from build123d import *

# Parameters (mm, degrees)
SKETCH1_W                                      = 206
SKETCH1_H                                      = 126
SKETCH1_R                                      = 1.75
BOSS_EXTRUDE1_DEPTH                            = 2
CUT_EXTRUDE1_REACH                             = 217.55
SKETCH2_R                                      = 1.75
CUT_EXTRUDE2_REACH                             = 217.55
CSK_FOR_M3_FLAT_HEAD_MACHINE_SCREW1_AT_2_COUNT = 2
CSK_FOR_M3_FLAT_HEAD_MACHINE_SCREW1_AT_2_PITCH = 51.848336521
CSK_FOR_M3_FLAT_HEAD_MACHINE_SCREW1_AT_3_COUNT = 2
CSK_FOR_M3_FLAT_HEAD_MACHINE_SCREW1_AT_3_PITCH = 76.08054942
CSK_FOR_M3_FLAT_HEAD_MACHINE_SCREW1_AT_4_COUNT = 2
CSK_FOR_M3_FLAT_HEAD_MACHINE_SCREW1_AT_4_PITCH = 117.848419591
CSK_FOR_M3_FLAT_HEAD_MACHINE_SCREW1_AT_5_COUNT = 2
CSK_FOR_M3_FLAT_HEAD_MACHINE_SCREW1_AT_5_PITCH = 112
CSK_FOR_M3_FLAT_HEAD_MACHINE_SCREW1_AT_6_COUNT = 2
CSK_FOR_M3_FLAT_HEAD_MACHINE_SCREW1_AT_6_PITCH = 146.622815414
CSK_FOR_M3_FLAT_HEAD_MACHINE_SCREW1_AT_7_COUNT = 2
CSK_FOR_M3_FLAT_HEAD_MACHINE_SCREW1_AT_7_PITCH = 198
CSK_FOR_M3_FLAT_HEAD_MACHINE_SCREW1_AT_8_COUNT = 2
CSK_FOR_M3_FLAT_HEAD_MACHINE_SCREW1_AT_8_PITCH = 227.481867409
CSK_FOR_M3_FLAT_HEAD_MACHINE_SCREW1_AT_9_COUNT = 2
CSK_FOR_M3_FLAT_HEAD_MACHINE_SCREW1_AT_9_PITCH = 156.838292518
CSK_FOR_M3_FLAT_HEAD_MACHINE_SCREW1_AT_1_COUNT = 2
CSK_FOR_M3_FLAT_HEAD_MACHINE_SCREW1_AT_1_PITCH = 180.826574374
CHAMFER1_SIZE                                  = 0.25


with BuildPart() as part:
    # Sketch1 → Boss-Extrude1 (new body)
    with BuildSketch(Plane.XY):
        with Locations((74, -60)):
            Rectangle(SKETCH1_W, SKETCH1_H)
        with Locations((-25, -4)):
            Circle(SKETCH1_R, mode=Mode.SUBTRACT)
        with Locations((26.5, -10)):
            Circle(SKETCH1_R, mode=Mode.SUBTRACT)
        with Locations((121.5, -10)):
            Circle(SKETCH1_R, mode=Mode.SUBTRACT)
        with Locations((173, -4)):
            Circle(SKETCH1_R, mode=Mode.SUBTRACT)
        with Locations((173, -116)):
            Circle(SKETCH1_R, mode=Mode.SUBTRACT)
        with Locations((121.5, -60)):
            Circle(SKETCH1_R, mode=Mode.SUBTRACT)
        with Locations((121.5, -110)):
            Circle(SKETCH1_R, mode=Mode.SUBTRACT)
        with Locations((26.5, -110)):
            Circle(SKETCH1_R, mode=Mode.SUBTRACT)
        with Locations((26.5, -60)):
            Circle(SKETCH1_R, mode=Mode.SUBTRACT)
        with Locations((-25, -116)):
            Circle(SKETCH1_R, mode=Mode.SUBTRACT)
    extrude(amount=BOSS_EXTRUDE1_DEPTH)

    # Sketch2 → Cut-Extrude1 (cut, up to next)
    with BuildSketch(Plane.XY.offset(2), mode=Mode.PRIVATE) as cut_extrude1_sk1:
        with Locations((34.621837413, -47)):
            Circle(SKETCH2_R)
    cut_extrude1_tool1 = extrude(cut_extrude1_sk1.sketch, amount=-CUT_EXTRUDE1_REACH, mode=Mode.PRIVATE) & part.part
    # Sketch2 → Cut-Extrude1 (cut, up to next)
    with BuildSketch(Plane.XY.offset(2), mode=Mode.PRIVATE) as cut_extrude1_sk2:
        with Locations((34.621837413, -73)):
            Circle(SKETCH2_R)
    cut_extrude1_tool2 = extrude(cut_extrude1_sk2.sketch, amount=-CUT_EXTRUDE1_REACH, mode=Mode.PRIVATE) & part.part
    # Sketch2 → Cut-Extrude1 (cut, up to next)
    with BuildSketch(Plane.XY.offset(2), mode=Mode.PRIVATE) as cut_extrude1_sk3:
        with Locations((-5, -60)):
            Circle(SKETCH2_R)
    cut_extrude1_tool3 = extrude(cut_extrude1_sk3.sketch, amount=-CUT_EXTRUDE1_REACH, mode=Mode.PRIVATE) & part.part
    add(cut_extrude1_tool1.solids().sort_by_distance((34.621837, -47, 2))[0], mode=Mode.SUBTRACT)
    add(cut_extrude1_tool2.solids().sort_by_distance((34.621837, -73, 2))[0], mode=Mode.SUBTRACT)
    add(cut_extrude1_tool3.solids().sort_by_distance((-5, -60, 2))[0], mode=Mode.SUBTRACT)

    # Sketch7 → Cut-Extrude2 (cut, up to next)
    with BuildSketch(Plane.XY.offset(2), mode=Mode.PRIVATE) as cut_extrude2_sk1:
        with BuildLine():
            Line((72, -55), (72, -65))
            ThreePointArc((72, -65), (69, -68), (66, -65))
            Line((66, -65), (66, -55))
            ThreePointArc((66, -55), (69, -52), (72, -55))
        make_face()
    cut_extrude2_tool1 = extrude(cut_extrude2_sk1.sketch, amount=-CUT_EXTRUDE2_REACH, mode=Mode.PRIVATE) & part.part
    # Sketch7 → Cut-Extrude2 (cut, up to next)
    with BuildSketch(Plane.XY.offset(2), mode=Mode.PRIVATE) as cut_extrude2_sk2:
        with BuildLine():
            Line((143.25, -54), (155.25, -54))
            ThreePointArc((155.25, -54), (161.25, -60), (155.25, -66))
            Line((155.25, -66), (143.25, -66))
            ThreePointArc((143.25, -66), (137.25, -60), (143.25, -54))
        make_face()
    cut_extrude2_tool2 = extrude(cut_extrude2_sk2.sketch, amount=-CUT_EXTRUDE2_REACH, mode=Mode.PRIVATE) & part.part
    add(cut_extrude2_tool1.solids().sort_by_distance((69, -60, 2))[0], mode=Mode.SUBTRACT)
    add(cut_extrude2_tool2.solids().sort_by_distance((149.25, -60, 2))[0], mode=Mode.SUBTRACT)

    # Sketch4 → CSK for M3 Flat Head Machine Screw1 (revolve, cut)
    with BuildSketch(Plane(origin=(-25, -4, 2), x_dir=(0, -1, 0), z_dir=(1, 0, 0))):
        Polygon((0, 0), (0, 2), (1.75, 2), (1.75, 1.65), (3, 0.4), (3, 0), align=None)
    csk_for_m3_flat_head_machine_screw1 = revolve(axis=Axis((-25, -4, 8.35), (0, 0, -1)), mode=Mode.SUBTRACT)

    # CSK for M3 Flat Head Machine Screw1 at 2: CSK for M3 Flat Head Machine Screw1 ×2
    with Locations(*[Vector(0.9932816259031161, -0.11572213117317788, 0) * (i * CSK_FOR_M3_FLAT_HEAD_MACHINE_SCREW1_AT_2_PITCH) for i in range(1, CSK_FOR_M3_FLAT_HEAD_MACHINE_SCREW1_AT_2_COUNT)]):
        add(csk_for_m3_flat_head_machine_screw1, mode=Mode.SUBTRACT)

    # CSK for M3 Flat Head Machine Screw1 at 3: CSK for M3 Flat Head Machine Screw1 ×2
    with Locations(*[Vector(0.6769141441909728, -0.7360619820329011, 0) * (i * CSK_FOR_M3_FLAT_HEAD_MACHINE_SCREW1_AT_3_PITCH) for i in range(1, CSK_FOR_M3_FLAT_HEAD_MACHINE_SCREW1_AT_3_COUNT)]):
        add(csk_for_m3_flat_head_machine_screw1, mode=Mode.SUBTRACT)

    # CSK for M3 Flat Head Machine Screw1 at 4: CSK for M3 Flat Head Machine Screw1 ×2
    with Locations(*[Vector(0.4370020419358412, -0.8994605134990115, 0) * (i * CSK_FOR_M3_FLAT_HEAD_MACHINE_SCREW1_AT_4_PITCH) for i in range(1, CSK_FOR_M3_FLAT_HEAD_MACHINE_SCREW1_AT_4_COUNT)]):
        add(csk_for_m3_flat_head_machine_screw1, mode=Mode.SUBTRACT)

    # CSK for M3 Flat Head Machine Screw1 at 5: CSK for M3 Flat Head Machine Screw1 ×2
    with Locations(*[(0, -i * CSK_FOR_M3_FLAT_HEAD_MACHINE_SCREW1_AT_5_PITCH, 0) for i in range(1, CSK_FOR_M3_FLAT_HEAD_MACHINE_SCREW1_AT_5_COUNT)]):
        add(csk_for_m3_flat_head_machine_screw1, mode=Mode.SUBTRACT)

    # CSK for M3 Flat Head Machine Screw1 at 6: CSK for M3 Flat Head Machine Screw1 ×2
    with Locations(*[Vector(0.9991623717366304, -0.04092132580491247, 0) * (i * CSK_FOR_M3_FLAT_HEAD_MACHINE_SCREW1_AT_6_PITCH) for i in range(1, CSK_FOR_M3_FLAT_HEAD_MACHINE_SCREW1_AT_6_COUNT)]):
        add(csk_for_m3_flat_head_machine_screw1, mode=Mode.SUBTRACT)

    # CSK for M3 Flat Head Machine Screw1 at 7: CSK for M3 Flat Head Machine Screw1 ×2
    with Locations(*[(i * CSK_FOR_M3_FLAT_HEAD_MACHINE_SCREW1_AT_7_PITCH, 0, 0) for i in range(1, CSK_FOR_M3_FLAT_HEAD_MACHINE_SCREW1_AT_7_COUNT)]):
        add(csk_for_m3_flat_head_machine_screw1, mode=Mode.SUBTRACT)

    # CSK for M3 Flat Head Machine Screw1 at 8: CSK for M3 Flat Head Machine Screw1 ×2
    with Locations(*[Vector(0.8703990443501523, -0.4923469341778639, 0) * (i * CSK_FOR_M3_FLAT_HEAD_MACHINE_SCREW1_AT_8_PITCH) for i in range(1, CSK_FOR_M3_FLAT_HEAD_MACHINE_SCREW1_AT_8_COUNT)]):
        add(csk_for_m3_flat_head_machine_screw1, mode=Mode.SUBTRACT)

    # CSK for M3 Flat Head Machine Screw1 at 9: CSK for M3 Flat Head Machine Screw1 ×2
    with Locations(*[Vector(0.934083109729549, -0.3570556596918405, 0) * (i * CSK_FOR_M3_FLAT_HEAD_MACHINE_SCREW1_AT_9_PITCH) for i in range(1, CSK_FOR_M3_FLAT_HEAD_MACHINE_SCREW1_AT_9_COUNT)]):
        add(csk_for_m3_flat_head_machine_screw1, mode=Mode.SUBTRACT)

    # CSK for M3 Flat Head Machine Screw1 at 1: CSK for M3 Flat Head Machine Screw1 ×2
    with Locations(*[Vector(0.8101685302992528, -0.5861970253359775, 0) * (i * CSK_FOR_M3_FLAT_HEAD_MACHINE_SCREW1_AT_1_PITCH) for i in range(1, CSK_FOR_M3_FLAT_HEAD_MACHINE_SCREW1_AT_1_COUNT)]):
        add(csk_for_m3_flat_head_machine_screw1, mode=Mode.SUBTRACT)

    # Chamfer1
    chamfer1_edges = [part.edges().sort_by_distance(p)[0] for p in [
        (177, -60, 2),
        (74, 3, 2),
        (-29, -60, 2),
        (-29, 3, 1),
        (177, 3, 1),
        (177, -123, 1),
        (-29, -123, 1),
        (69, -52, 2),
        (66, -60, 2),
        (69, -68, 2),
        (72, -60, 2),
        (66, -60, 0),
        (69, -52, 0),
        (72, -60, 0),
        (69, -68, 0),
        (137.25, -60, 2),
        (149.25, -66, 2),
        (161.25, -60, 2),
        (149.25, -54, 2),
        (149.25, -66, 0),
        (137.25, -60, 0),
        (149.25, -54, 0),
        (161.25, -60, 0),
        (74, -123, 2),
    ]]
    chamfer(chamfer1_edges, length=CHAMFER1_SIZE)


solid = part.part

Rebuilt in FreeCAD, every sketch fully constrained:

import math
import FreeCAD as App
import Part
import Sketcher
Q = App.Units.Quantity


def edges_at(feature, points):
    """Names of the edges that pass closest to the given points."""
    edges = feature.Shape.Edges
    near = lambda p: min(range(len(edges)), key=lambda i: edges[i].distToShape(Part.Vertex(*p))[0])
    return sorted({f"Edge{near(p) + 1}" for p in points})

doc = App.newDocument("Part")
params = doc.addObject("Spreadsheet::Sheet", "Params")
for row, (alias, value) in enumerate([
    ("sketch1_diameter", "3.5 mm"),
    ("sketch1_width", "206 mm"),
    ("sketch1_height", "126 mm"),
    ("pad1_length", "2 mm"),
    ("sketch2_diameter", "3.5 mm"),
    ("sketch3_diameter", "3.5 mm"),
    ("sketch4_diameter", "3.5 mm"),
    ("sketch5_radius", "3 mm"),
    ("sketch5_height", "10 mm"),
    ("sketch6_radius", "6 mm"),
    ("sketch6_width", "12 mm"),
    ("sketch7_width", "3 mm"),
    ("sketch7_height", "2 mm"),
    ("sketch7_height2", "0.4 mm"),
    ("sketch7_width2", "1.75 mm"),
    ("groove_angle", "360 deg"),
    ("linearpattern_pitch", "51.848337 mm"),
    ("linearpattern2_pitch", "76.080549 mm"),
    ("linearpattern3_pitch", "117.84842 mm"),
    ("linearpattern4_pitch", "112 mm"),
    ("linearpattern5_pitch", "146.622815 mm"),
    ("linearpattern6_pitch", "198 mm"),
    ("linearpattern7_pitch", "227.481867 mm"),
    ("linearpattern8_pitch", "156.838293 mm"),
    ("linearpattern9_pitch", "180.826574 mm"),
    ("chamfer_size", "0.25 mm"),
], start=1):
    params.set(f"A{row}", alias)
    params.set(f"B{row}", "=" + value)
    params.setAlias(f"B{row}", alias)

body = doc.addObject("PartDesign::Body", "Body")

sketch1 = body.newObject("Sketcher::SketchObject", "Sketch")
sketch1.AttachmentSupport = (doc.getObject("XY_Plane"), [""])
sketch1.MapMode = "FlatFace"
sketch1.addGeometry(Part.LineSegment(App.Vector(-29, 3, 0), App.Vector(-29, -123, 0)), False)
sketch1.addGeometry(Part.LineSegment(App.Vector(-29, -123, 0), App.Vector(177, -123, 0)), False)
sketch1.addGeometry(Part.LineSegment(App.Vector(177, -123, 0), App.Vector(177, 3, 0)), False)
sketch1.addGeometry(Part.LineSegment(App.Vector(177, 3, 0), App.Vector(-29, 3, 0)), False)
sketch1.addGeometry(Part.Circle(App.Vector(-25, -116, 0), App.Vector(0, 0, 1), 1.75), False)
sketch1.addGeometry(Part.Circle(App.Vector(26.5, -110, 0), App.Vector(0, 0, 1), 1.75), False)
sketch1.addGeometry(Part.Circle(App.Vector(121.5, -110, 0), App.Vector(0, 0, 1), 1.75), False)
sketch1.addGeometry(Part.Circle(App.Vector(173, -116, 0), App.Vector(0, 0, 1), 1.75), False)
sketch1.addGeometry(Part.Circle(App.Vector(26.5, -60, 0), App.Vector(0, 0, 1), 1.75), False)
sketch1.addGeometry(Part.Circle(App.Vector(-25, -4, 0), App.Vector(0, 0, 1), 1.75), False)
sketch1.addGeometry(Part.Circle(App.Vector(26.5, -10, 0), App.Vector(0, 0, 1), 1.75), False)
sketch1.addGeometry(Part.Circle(App.Vector(121.5, -60, 0), App.Vector(0, 0, 1), 1.75), False)
sketch1.addGeometry(Part.Circle(App.Vector(121.5, -10, 0), App.Vector(0, 0, 1), 1.75), False)
sketch1.addGeometry(Part.Circle(App.Vector(173, -4, 0), App.Vector(0, 0, 1), 1.75), False)
sketch1.addConstraint(Sketcher.Constraint("Coincident", 0, 2, 1, 1))
sketch1.addConstraint(Sketcher.Constraint("Coincident", 1, 2, 2, 1))
sketch1.addConstraint(Sketcher.Constraint("Coincident", 2, 2, 3, 1))
sketch1.addConstraint(Sketcher.Constraint("Coincident", 3, 2, 0, 1))
sketch1.addConstraint(Sketcher.Constraint("Vertical", 0))
sketch1.addConstraint(Sketcher.Constraint("Horizontal", 1))
sketch1.addConstraint(Sketcher.Constraint("Vertical", 2))
sketch1.addConstraint(Sketcher.Constraint("Horizontal", 3))
sketch1.addConstraint(Sketcher.Constraint("Equal", 4, 5))
sketch1.addConstraint(Sketcher.Constraint("Equal", 5, 6))
sketch1.addConstraint(Sketcher.Constraint("Equal", 6, 7))
sketch1.addConstraint(Sketcher.Constraint("Equal", 7, 8))
sketch1.addConstraint(Sketcher.Constraint("Equal", 8, 9))
sketch1.addConstraint(Sketcher.Constraint("Equal", 9, 10))
sketch1.addConstraint(Sketcher.Constraint("Equal", 10, 11))
sketch1.addConstraint(Sketcher.Constraint("Equal", 11, 12))
sketch1.addConstraint(Sketcher.Constraint("Equal", 12, 13))
sketch1.addConstraint(Sketcher.Constraint("Horizontal", 5, 3, 6, 3))
sketch1.addConstraint(Sketcher.Constraint("Horizontal", 4, 3, 7, 3))
sketch1.addConstraint(Sketcher.Constraint("Horizontal", 8, 3, 11, 3))
sketch1.addConstraint(Sketcher.Constraint("Horizontal", 10, 3, 12, 3))
sketch1.addConstraint(Sketcher.Constraint("Horizontal", 9, 3, 13, 3))
sketch1.addConstraint(Sketcher.Constraint("Vertical", 5, 3, 8, 3))
sketch1.addConstraint(Sketcher.Constraint("Vertical", 4, 3, 9, 3))
sketch1.addConstraint(Sketcher.Constraint("Vertical", 8, 3, 10, 3))
sketch1.addConstraint(Sketcher.Constraint("Vertical", 6, 3, 11, 3))
sketch1.addConstraint(Sketcher.Constraint("Vertical", 11, 3, 12, 3))
sketch1.addConstraint(Sketcher.Constraint("Vertical", 7, 3, 13, 3))
sketch1.addConstraint(Sketcher.Constraint("Diameter", 4, Q("3.5 mm")))
sketch1.addConstraint(Sketcher.Constraint("DistanceX", 1, 1, 1, 2, Q("206 mm")))
sketch1.addConstraint(Sketcher.Constraint("DistanceY", 0, 2, 0, 1, Q("126 mm")))
sketch1.addConstraint(Sketcher.Constraint("DistanceX", 4, 3, -1, 1, Q("25 mm")))
sketch1.addConstraint(Sketcher.Constraint("DistanceY", 4, 3, -1, 1, Q("116 mm")))
sketch1.addConstraint(Sketcher.Constraint("DistanceY", 5, 3, -1, 1, Q("110 mm")))
sketch1.addConstraint(Sketcher.Constraint("DistanceX", -1, 1, 7, 3, Q("173 mm")))
sketch1.addConstraint(Sketcher.Constraint("DistanceY", 8, 3, -1, 1, Q("60 mm")))
sketch1.addConstraint(Sketcher.Constraint("DistanceY", 9, 3, -1, 1, Q("4 mm")))
sketch1.addConstraint(Sketcher.Constraint("DistanceY", 10, 3, -1, 1, Q("10 mm")))
sketch1.addConstraint(Sketcher.Constraint("DistanceX", 0, 2, -1, 1, Q("29 mm")))
sketch1.addConstraint(Sketcher.Constraint("DistanceY", 0, 2, -1, 1, Q("123 mm")))
sketch1.addConstraint(Sketcher.Constraint("DistanceX", 5, 3, 6, 3, Q("95 mm")))
sketch1.addConstraint(Sketcher.Constraint("DistanceX", -1, 1, 5, 3, Q("26.5 mm")))
sketch1.setExpression("Constraints[28]", "Params.sketch1_diameter")
sketch1.setExpression("Constraints[29]", "Params.sketch1_width")
sketch1.setExpression("Constraints[30]", "Params.sketch1_height")
pad1 = body.newObject("PartDesign::Pad", "Pad")
pad1.Profile = sketch1
pad1.setExpression("Length", "Params.pad1_length")

sketch2 = body.newObject("Sketcher::SketchObject", "Sketch001")
sketch2.AttachmentSupport = (doc.getObject("XY_Plane"), [""])
sketch2.MapMode = "FlatFace"
sketch2.AttachmentOffset = App.Placement(App.Vector(0, 0, 2), App.Rotation())
sketch2.addGeometry(Part.Circle(App.Vector(34.621837, -47, 0), App.Vector(0, 0, 1), 1.75), False)
sketch2.addConstraint(Sketcher.Constraint("Diameter", 0, Q("3.5 mm")))
sketch2.addConstraint(Sketcher.Constraint("DistanceY", 0, 3, -1, 1, Q("47 mm")))
sketch2.addConstraint(Sketcher.Constraint("DistanceX", -1, 1, 0, 3, Q("34.621837 mm")))
sketch2.setExpression("Constraints[0]", "Params.sketch2_diameter")
pocket1 = body.newObject("PartDesign::Pocket", "Pocket")
pocket1.Profile = sketch2
pocket1.Type = "UpToFirst"

sketch3 = body.newObject("Sketcher::SketchObject", "Sketch002")
sketch3.AttachmentSupport = (doc.getObject("XY_Plane"), [""])
sketch3.MapMode = "FlatFace"
sketch3.AttachmentOffset = App.Placement(App.Vector(0, 0, 2), App.Rotation())
sketch3.addGeometry(Part.Circle(App.Vector(34.621837, -73, 0), App.Vector(0, 0, 1), 1.75), False)
sketch3.addConstraint(Sketcher.Constraint("Diameter", 0, Q("3.5 mm")))
sketch3.addConstraint(Sketcher.Constraint("DistanceY", 0, 3, -1, 1, Q("73 mm")))
sketch3.addConstraint(Sketcher.Constraint("DistanceX", -1, 1, 0, 3, Q("34.621837 mm")))
sketch3.setExpression("Constraints[0]", "Params.sketch3_diameter")
pocket2 = body.newObject("PartDesign::Pocket", "Pocket001")
pocket2.Profile = sketch3
pocket2.Type = "UpToFirst"

sketch4 = body.newObject("Sketcher::SketchObject", "Sketch003")
sketch4.AttachmentSupport = (doc.getObject("XY_Plane"), [""])
sketch4.MapMode = "FlatFace"
sketch4.AttachmentOffset = App.Placement(App.Vector(0, 0, 2), App.Rotation())
sketch4.addGeometry(Part.Circle(App.Vector(-5, -60, 0), App.Vector(0, 0, 1), 1.75), False)
sketch4.addConstraint(Sketcher.Constraint("Diameter", 0, Q("3.5 mm")))
sketch4.addConstraint(Sketcher.Constraint("DistanceX", 0, 3, -1, 1, Q("5 mm")))
sketch4.addConstraint(Sketcher.Constraint("DistanceY", 0, 3, -1, 1, Q("60 mm")))
sketch4.setExpression("Constraints[0]", "Params.sketch4_diameter")
pocket3 = body.newObject("PartDesign::Pocket", "Pocket002")
pocket3.Profile = sketch4
pocket3.Type = "UpToFirst"

sketch5 = body.newObject("Sketcher::SketchObject", "Sketch004")
sketch5.AttachmentSupport = (doc.getObject("XY_Plane"), [""])
sketch5.MapMode = "FlatFace"
sketch5.AttachmentOffset = App.Placement(App.Vector(0, 0, 2), App.Rotation())
sketch5.addGeometry(Part.LineSegment(App.Vector(72, -65, 0), App.Vector(72, -55, 0)), False)
sketch5.addGeometry(Part.ArcOfCircle(Part.Circle(App.Vector(69, -55, 0), App.Vector(0, 0, 1), 3), math.radians(0), math.radians(180)), False)
sketch5.addGeometry(Part.LineSegment(App.Vector(66, -55, 0), App.Vector(66, -65, 0)), False)
sketch5.addGeometry(Part.ArcOfCircle(Part.Circle(App.Vector(69, -65, 0), App.Vector(0, 0, 1), 3), math.radians(180), math.radians(360)), False)
sketch5.addConstraint(Sketcher.Constraint("Tangent", 0, 2, 1, 1))
sketch5.addConstraint(Sketcher.Constraint("Tangent", 1, 2, 2, 1))
sketch5.addConstraint(Sketcher.Constraint("Tangent", 2, 2, 3, 1))
sketch5.addConstraint(Sketcher.Constraint("Tangent", 3, 2, 0, 1))
sketch5.addConstraint(Sketcher.Constraint("Vertical", 0))
sketch5.addConstraint(Sketcher.Constraint("Vertical", 2))
sketch5.addConstraint(Sketcher.Constraint("Radius", 1, Q("3 mm")))
sketch5.addConstraint(Sketcher.Constraint("DistanceY", 0, 1, 0, 2, Q("10 mm")))
sketch5.addConstraint(Sketcher.Constraint("DistanceX", -1, 1, 1, 3, Q("69 mm")))
sketch5.addConstraint(Sketcher.Constraint("DistanceY", 1, 3, -1, 1, Q("55 mm")))
sketch5.setExpression("Constraints[6]", "Params.sketch5_radius")
sketch5.setExpression("Constraints[7]", "Params.sketch5_height")
pocket4 = body.newObject("PartDesign::Pocket", "Pocket003")
pocket4.Profile = sketch5
pocket4.Type = "UpToFirst"

sketch6 = body.newObject("Sketcher::SketchObject", "Sketch005")
sketch6.AttachmentSupport = (doc.getObject("XY_Plane"), [""])
sketch6.MapMode = "FlatFace"
sketch6.AttachmentOffset = App.Placement(App.Vector(0, 0, 2), App.Rotation())
sketch6.addGeometry(Part.LineSegment(App.Vector(155.25, -54, 0), App.Vector(143.25, -54, 0)), False)
sketch6.addGeometry(Part.ArcOfCircle(Part.Circle(App.Vector(143.25, -60, 0), App.Vector(0, 0, 1), 6), math.radians(90), math.radians(270)), False)
sketch6.addGeometry(Part.LineSegment(App.Vector(143.25, -66, 0), App.Vector(155.25, -66, 0)), False)
sketch6.addGeometry(Part.ArcOfCircle(Part.Circle(App.Vector(155.25, -60, 0), App.Vector(0, 0, 1), 6), math.radians(-90), math.radians(90)), False)
sketch6.addConstraint(Sketcher.Constraint("Tangent", 0, 2, 1, 1))
sketch6.addConstraint(Sketcher.Constraint("Tangent", 1, 2, 2, 1))
sketch6.addConstraint(Sketcher.Constraint("Tangent", 2, 2, 3, 1))
sketch6.addConstraint(Sketcher.Constraint("Tangent", 3, 2, 0, 1))
sketch6.addConstraint(Sketcher.Constraint("Horizontal", 0))
sketch6.addConstraint(Sketcher.Constraint("Horizontal", 2))
sketch6.addConstraint(Sketcher.Constraint("Radius", 1, Q("6 mm")))
sketch6.addConstraint(Sketcher.Constraint("DistanceX", 0, 2, 0, 1, Q("12 mm")))
sketch6.addConstraint(Sketcher.Constraint("DistanceY", 1, 3, -1, 1, Q("60 mm")))
sketch6.addConstraint(Sketcher.Constraint("DistanceX", -1, 1, 1, 3, Q("143.25 mm")))
sketch6.setExpression("Constraints[6]", "Params.sketch6_radius")
sketch6.setExpression("Constraints[7]", "Params.sketch6_width")
pocket5 = body.newObject("PartDesign::Pocket", "Pocket004")
pocket5.Profile = sketch6
pocket5.Type = "UpToFirst"

sketch7 = body.newObject("Sketcher::SketchObject", "Sketch006")
sketch7.AttachmentSupport = (doc.getObject("YZ_Plane"), [""])
sketch7.MapMode = "FlatFace"
sketch7.AttachmentOffset = App.Placement(App.Vector(0, 0, -25), App.Rotation())
sketch7.addGeometry(Part.LineSegment(App.Vector(-4, 0, 0), App.Vector(-4, 2, 0)), False)
sketch7.addGeometry(Part.LineSegment(App.Vector(-4, 2, 0), App.Vector(-7, 2, 0)), False)
sketch7.addGeometry(Part.LineSegment(App.Vector(-7, 2, 0), App.Vector(-7, 1.6, 0)), False)
sketch7.addGeometry(Part.LineSegment(App.Vector(-7, 1.6, 0), App.Vector(-5.75, 0.35, 0)), False)
sketch7.addGeometry(Part.LineSegment(App.Vector(-5.75, 0.35, 0), App.Vector(-5.75, 0, 0)), False)
sketch7.addGeometry(Part.LineSegment(App.Vector(-5.75, 0, 0), App.Vector(-4, 0, 0)), False)
sketch7.addGeometry(Part.LineSegment(App.Vector(-4, 2, 0), App.Vector(-4, 0, 0)), True)
sketch7.addConstraint(Sketcher.Constraint("Coincident", 0, 2, 1, 1))
sketch7.addConstraint(Sketcher.Constraint("Coincident", 1, 2, 2, 1))
sketch7.addConstraint(Sketcher.Constraint("Coincident", 2, 2, 3, 1))
sketch7.addConstraint(Sketcher.Constraint("Coincident", 3, 2, 4, 1))
sketch7.addConstraint(Sketcher.Constraint("Coincident", 4, 2, 5, 1))
sketch7.addConstraint(Sketcher.Constraint("Coincident", 5, 2, 0, 1))
sketch7.addConstraint(Sketcher.Constraint("Vertical", 0))
sketch7.addConstraint(Sketcher.Constraint("Horizontal", 1))
sketch7.addConstraint(Sketcher.Constraint("Vertical", 2))
sketch7.addConstraint(Sketcher.Constraint("Vertical", 4))
sketch7.addConstraint(Sketcher.Constraint("Horizontal", 5))
sketch7.addConstraint(Sketcher.Constraint("Vertical", 6))
sketch7.addConstraint(Sketcher.Constraint("Coincident", 6, 1, 0, 2))
sketch7.addConstraint(Sketcher.Constraint("PointOnObject", 4, 2, -1))
sketch7.addConstraint(Sketcher.Constraint("PointOnObject", 6, 2, -1))
sketch7.addConstraint(Sketcher.Constraint("DistanceX", 1, 2, 1, 1, Q("3 mm")))
sketch7.addConstraint(Sketcher.Constraint("DistanceY", 0, 1, 0, 2, Q("2 mm")))
sketch7.addConstraint(Sketcher.Constraint("Angle", 3, Q("-45 deg")))
sketch7.addConstraint(Sketcher.Constraint("DistanceY", 2, 2, 2, 1, Q("0.4 mm")))
sketch7.addConstraint(Sketcher.Constraint("DistanceX", 0, 2, -1, 1, Q("4 mm")))
sketch7.addConstraint(Sketcher.Constraint("DistanceX", 5, 1, 5, 2, Q("1.75 mm")))
sketch7.setExpression("Constraints[15]", "Params.sketch7_width")
sketch7.setExpression("Constraints[16]", "Params.sketch7_height")
sketch7.setExpression("Constraints[18]", "Params.sketch7_height2")
sketch7.setExpression("Constraints[20]", "Params.sketch7_width2")
groove = body.newObject("PartDesign::Groove", "Groove")
groove.Profile = sketch7
groove.ReferenceAxis = (sketch7, ["Axis0"])
groove.setExpression("Angle", "Params.groove_angle")
doc.recompute()

datumline = body.newObject("PartDesign::Line", "DatumLine")
datumline.Placement = App.Placement(App.Vector(0, 0, 0), App.Rotation(App.Vector(0, 0, 1), App.Vector(0.993281626, -0.115722131, 0)))
linearpattern = body.newObject("PartDesign::LinearPattern", "LinearPattern")
linearpattern.Originals = [groove]
linearpattern.Direction = (datumline, [""])
linearpattern.Mode = "offset"
linearpattern.setExpression("Offset", "Params.linearpattern_pitch")
linearpattern.Occurrences = 2
body.Tip = linearpattern
doc.recompute()

datumline2 = body.newObject("PartDesign::Line", "DatumLine001")
datumline2.Placement = App.Placement(App.Vector(0, 0, 0), App.Rotation(App.Vector(0, 0, 1), App.Vector(0.676914144, -0.736061982, 0)))
linearpattern2 = body.newObject("PartDesign::LinearPattern", "LinearPattern001")
linearpattern2.Originals = [groove]
linearpattern2.Direction = (datumline2, [""])
linearpattern2.Mode = "offset"
linearpattern2.setExpression("Offset", "Params.linearpattern2_pitch")
linearpattern2.Occurrences = 2
body.Tip = linearpattern2
doc.recompute()

datumline3 = body.newObject("PartDesign::Line", "DatumLine002")
datumline3.Placement = App.Placement(App.Vector(0, 0, 0), App.Rotation(App.Vector(0, 0, 1), App.Vector(0.437002042, -0.899460513, 0)))
linearpattern3 = body.newObject("PartDesign::LinearPattern", "LinearPattern002")
linearpattern3.Originals = [groove]
linearpattern3.Direction = (datumline3, [""])
linearpattern3.Mode = "offset"
linearpattern3.setExpression("Offset", "Params.linearpattern3_pitch")
linearpattern3.Occurrences = 2
body.Tip = linearpattern3
doc.recompute()

linearpattern4 = body.newObject("PartDesign::LinearPattern", "LinearPattern003")
linearpattern4.Originals = [groove]
linearpattern4.Direction = (doc.getObject("Y_Axis"), [""])
linearpattern4.Mode = "offset"
linearpattern4.setExpression("Offset", "Params.linearpattern4_pitch")
linearpattern4.Occurrences = 2
linearpattern4.Reversed = True
body.Tip = linearpattern4
doc.recompute()

datumline4 = body.newObject("PartDesign::Line", "DatumLine003")
datumline4.Placement = App.Placement(App.Vector(0, 0, 0), App.Rotation(App.Vector(0, 0, 1), App.Vector(0.999162372, -0.040921326, 0)))
linearpattern5 = body.newObject("PartDesign::LinearPattern", "LinearPattern004")
linearpattern5.Originals = [groove]
linearpattern5.Direction = (datumline4, [""])
linearpattern5.Mode = "offset"
linearpattern5.setExpression("Offset", "Params.linearpattern5_pitch")
linearpattern5.Occurrences = 2
body.Tip = linearpattern5
doc.recompute()

linearpattern6 = body.newObject("PartDesign::LinearPattern", "LinearPattern005")
linearpattern6.Originals = [groove]
linearpattern6.Direction = (doc.getObject("X_Axis"), [""])
linearpattern6.Mode = "offset"
linearpattern6.setExpression("Offset", "Params.linearpattern6_pitch")
linearpattern6.Occurrences = 2
body.Tip = linearpattern6
doc.recompute()

datumline5 = body.newObject("PartDesign::Line", "DatumLine004")
datumline5.Placement = App.Placement(App.Vector(0, 0, 0), App.Rotation(App.Vector(0, 0, 1), App.Vector(0.870399044, -0.492346934, 0)))
linearpattern7 = body.newObject("PartDesign::LinearPattern", "LinearPattern006")
linearpattern7.Originals = [groove]
linearpattern7.Direction = (datumline5, [""])
linearpattern7.Mode = "offset"
linearpattern7.setExpression("Offset", "Params.linearpattern7_pitch")
linearpattern7.Occurrences = 2
body.Tip = linearpattern7
doc.recompute()

datumline6 = body.newObject("PartDesign::Line", "DatumLine005")
datumline6.Placement = App.Placement(App.Vector(0, 0, 0), App.Rotation(App.Vector(0, 0, 1), App.Vector(0.93408311, -0.35705566, 0)))
linearpattern8 = body.newObject("PartDesign::LinearPattern", "LinearPattern007")
linearpattern8.Originals = [groove]
linearpattern8.Direction = (datumline6, [""])
linearpattern8.Mode = "offset"
linearpattern8.setExpression("Offset", "Params.linearpattern8_pitch")
linearpattern8.Occurrences = 2
body.Tip = linearpattern8
doc.recompute()

datumline7 = body.newObject("PartDesign::Line", "DatumLine006")
datumline7.Placement = App.Placement(App.Vector(0, 0, 0), App.Rotation(App.Vector(0, 0, 1), App.Vector(0.81016853, -0.586197025, 0)))
linearpattern9 = body.newObject("PartDesign::LinearPattern", "LinearPattern008")
linearpattern9.Originals = [groove]
linearpattern9.Direction = (datumline7, [""])
linearpattern9.Mode = "offset"
linearpattern9.setExpression("Offset", "Params.linearpattern9_pitch")
linearpattern9.Occurrences = 2
body.Tip = linearpattern9
doc.recompute()

chamfer = body.newObject("PartDesign::Chamfer", "Chamfer")
chamfer.Base = (linearpattern9, edges_at(linearpattern9, [
    (177, -60, 2),
    (74, 3, 2),
    (-29, -60, 2),
    (-29, 3, 1),
    (177, 3, 1),
    (177, -123, 1),
    (-29, -123, 1),
    (69, -52, 2),
    (66, -60, 2),
    (69, -68, 2),
    (72, -60, 2),
    (66, -60, 0),
    (69, -52, 0),
    (72, -60, 0),
    (69, -68, 0),
    (137.25, -60, 2),
    (149.25, -66, 2),
    (161.25, -60, 2),
    (149.25, -54, 2),
    (149.25, -66, 0),
    (137.25, -60, 0),
    (149.25, -54, 0),
    (161.25, -60, 0),
    (74, -123, 2),
]))
chamfer.setExpression("Size", "Params.chamfer_size")

doc.recompute()
